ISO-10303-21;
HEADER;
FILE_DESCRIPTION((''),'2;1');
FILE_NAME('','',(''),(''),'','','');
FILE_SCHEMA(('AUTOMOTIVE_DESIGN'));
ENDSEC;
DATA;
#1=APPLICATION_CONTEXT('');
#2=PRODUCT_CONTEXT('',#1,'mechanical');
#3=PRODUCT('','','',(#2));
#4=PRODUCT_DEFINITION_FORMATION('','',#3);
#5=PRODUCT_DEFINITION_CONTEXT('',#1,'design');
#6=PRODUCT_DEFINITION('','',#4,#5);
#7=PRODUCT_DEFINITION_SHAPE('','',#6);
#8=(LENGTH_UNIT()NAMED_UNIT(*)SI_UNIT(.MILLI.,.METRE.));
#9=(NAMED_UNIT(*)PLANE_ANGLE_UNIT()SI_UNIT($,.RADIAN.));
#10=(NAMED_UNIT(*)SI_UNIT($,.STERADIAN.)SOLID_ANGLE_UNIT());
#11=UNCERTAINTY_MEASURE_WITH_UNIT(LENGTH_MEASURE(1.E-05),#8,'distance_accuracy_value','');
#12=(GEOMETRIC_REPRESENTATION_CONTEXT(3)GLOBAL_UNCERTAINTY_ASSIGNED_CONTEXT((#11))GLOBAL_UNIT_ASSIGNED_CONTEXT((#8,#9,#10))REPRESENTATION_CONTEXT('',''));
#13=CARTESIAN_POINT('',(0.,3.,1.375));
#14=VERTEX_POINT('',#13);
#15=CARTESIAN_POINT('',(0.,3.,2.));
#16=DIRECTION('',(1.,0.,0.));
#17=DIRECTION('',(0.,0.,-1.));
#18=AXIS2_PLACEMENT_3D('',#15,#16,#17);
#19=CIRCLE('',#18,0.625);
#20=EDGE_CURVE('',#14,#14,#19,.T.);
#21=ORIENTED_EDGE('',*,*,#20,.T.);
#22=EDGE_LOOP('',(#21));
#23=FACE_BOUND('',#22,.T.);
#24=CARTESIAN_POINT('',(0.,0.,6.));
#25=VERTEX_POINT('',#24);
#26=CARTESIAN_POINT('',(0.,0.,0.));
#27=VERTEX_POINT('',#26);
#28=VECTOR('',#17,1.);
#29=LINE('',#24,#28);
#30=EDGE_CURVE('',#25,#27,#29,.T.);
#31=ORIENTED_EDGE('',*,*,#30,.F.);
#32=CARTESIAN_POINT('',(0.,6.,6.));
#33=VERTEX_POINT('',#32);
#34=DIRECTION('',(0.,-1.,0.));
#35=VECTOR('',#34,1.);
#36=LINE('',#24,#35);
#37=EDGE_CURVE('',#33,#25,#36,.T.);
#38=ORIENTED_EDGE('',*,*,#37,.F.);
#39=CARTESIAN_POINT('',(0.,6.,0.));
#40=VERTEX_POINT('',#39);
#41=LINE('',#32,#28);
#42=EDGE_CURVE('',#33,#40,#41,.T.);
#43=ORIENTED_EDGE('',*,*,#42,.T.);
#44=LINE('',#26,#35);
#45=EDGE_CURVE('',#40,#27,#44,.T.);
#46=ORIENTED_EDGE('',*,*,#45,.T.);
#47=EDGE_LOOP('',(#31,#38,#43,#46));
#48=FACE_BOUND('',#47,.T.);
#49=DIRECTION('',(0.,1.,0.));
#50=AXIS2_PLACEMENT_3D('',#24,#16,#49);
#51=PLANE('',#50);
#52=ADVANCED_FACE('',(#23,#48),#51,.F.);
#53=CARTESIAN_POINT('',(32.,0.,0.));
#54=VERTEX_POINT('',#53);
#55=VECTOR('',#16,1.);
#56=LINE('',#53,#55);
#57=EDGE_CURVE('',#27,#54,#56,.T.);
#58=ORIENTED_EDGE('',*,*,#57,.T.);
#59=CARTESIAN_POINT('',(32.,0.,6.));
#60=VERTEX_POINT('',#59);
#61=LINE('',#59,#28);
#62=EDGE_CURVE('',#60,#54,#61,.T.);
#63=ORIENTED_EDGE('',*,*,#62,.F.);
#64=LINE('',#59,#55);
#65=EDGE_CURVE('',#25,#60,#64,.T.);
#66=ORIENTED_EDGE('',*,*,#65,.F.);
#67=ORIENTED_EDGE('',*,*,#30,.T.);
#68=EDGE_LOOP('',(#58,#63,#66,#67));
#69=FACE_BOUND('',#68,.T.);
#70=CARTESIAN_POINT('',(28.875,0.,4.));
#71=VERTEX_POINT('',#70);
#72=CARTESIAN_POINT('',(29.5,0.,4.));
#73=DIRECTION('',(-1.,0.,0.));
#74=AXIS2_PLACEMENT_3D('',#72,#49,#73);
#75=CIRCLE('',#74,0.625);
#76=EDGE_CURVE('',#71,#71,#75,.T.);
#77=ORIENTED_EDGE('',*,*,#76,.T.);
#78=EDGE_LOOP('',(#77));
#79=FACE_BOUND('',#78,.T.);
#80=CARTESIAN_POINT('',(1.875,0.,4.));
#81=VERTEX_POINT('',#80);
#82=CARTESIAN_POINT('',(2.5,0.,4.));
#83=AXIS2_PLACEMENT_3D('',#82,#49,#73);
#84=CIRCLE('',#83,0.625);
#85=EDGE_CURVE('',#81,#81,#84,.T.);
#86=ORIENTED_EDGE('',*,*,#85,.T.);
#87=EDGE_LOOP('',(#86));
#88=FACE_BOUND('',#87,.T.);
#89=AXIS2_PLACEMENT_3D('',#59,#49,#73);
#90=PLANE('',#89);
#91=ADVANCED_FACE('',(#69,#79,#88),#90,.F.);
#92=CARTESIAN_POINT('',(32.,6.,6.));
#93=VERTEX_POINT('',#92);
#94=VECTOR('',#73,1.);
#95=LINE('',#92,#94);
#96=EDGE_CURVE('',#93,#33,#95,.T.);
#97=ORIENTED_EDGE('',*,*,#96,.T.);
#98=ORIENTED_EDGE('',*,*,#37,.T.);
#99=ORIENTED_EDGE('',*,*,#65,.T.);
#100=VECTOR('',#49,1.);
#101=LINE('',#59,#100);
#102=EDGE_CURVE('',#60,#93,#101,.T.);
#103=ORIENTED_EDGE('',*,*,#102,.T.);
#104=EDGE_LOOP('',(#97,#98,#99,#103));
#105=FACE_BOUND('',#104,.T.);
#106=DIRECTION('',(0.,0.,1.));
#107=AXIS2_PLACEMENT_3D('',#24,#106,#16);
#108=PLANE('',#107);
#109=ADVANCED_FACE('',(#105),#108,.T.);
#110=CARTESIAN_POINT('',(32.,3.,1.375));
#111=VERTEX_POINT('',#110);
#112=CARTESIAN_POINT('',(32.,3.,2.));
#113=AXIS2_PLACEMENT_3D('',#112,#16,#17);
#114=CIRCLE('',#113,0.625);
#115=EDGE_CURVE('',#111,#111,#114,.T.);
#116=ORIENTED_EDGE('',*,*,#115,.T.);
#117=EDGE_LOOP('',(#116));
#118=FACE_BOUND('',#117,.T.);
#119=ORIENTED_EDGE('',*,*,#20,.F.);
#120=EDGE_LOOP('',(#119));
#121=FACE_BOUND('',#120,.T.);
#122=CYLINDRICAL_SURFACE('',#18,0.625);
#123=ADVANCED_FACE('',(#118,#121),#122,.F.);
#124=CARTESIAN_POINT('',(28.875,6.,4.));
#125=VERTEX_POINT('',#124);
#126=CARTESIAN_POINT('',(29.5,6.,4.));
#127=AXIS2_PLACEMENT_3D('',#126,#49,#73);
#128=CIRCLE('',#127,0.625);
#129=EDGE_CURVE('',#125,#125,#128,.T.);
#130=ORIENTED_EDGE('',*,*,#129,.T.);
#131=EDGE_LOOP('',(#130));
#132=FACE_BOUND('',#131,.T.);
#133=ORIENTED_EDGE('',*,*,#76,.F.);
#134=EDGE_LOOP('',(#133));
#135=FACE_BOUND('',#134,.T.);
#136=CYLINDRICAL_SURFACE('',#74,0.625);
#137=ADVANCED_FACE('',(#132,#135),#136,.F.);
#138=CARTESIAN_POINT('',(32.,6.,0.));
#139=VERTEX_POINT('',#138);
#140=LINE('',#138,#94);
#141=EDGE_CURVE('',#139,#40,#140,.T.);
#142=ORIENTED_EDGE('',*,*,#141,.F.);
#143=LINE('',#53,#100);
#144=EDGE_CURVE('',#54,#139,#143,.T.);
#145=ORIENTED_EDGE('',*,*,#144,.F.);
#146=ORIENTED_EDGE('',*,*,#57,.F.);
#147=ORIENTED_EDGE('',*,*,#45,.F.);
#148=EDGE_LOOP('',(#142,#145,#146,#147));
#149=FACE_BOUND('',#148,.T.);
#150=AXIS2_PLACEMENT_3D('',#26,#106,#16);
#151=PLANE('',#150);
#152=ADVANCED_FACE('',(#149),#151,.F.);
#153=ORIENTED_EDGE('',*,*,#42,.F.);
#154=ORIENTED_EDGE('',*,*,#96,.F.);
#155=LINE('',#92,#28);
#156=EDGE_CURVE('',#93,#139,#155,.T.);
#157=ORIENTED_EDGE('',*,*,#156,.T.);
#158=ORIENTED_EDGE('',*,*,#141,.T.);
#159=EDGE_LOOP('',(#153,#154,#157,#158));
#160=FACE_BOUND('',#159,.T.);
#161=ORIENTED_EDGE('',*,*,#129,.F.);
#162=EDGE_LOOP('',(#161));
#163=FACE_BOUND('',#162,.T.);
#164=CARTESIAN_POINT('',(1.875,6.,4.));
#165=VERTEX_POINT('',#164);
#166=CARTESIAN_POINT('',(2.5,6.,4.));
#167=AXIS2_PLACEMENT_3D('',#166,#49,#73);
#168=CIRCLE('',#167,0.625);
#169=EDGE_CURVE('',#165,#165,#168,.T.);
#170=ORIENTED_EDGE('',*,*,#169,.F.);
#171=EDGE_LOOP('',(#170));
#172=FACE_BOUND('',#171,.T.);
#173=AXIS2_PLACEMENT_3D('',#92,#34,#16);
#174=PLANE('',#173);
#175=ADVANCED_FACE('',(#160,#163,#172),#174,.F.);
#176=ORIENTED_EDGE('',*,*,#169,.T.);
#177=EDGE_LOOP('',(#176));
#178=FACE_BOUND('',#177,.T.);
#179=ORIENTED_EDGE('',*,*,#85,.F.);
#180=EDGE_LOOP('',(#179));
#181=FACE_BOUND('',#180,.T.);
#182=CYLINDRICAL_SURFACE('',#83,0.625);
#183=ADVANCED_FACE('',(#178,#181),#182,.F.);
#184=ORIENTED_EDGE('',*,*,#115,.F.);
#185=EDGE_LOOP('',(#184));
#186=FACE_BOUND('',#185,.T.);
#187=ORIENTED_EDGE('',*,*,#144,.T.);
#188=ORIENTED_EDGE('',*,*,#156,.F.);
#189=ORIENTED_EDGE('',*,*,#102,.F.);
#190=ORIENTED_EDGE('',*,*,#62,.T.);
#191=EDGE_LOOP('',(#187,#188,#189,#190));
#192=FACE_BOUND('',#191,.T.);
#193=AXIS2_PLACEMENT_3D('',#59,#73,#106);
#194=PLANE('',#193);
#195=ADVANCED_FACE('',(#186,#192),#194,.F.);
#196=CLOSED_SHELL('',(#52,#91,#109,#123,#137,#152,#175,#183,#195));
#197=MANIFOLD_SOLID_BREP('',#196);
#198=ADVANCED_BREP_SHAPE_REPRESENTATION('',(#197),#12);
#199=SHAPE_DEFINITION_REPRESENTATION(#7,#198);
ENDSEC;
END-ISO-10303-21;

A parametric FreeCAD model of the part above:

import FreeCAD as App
import Part
import Sketcher
Q = App.Units.Quantity

doc = App.newDocument("Part")
body = doc.addObject("PartDesign::Body", "Body")

sketch1 = body.newObject("Sketcher::SketchObject", "Sketch")
sketch1.AttachmentSupport = (doc.getObject("XY_Plane"), [""])
sketch1.MapMode = "FlatFace"
sketch1.addGeometry(Part.LineSegment(App.Vector(0, 6, 0), App.Vector(0, 0, 0)), False)
sketch1.addGeometry(Part.LineSegment(App.Vector(0, 0, 0), App.Vector(32, 0, 0)), False)
sketch1.addGeometry(Part.LineSegment(App.Vector(32, 0, 0), App.Vector(32, 6, 0)), False)
sketch1.addGeometry(Part.LineSegment(App.Vector(32, 6, 0), App.Vector(0, 6, 0)), False)
sketch1.addConstraint(Sketcher.Constraint("Coincident", 0, 2, 1, 1))
sketch1.addConstraint(Sketcher.Constraint("Coincident", 1, 2, 2, 1))
sketch1.addConstraint(Sketcher.Constraint("Coincident", 2, 2, 3, 1))
sketch1.addConstraint(Sketcher.Constraint("Coincident", 3, 2, 0, 1))
sketch1.addConstraint(Sketcher.Constraint("Vertical", 0))
sketch1.addConstraint(Sketcher.Constraint("Horizontal", 1))
sketch1.addConstraint(Sketcher.Constraint("Vertical", 2))
sketch1.addConstraint(Sketcher.Constraint("Horizontal", 3))
sketch1.addConstraint(Sketcher.Constraint("Coincident", 0, 2, -1, 1))
sketch1.addConstraint(Sketcher.Constraint("DistanceX", 1, 1, 1, 2, Q("32 mm")))
sketch1.addConstraint(Sketcher.Constraint("DistanceY", 0, 2, 0, 1, Q("6 mm")))
pad1 = body.newObject("PartDesign::Pad", "Pad")
pad1.Profile = sketch1
pad1.Length = 6

sketch2 = body.newObject("Sketcher::SketchObject", "Sketch001")
sketch2.AttachmentSupport = (doc.getObject("YZ_Plane"), [""])
sketch2.MapMode = "FlatFace"
sketch2.AttachmentOffset = App.Placement(App.Vector(0, 0, 32), App.Rotation())
sketch2.addGeometry(Part.Circle(App.Vector(3, 2, 0), App.Vector(0, 0, 1), 0.625), False)
sketch2.addConstraint(Sketcher.Constraint("Diameter", 0, Q("1.25 mm")))
sketch2.addConstraint(Sketcher.Constraint("DistanceX", -1, 1, 0, 3, Q("3 mm")))
sketch2.addConstraint(Sketcher.Constraint("DistanceY", -1, 1, 0, 3, Q("2 mm")))
pocket1 = body.newObject("PartDesign::Pocket", "Pocket")
pocket1.Profile = sketch2
pocket1.Type = "ThroughAll"

sketch3 = body.newObject("Sketcher::SketchObject", "Sketch002")
sketch3.AttachmentSupport = (doc.getObject("XZ_Plane"), [""])
sketch3.MapMode = "FlatFace"
sketch3.AttachmentOffset = App.Placement(App.Vector(0, 0, -6), App.Rotation())
sketch3.addGeometry(Part.Circle(App.Vector(29.5, 4, 0), App.Vector(0, 0, 1), 0.625), False)
sketch3.addGeometry(Part.Circle(App.Vector(2.5, 4, 0), App.Vector(0, 0, 1), 0.625), False)
sketch3.addConstraint(Sketcher.Constraint("Equal", 0, 1))
sketch3.addConstraint(Sketcher.Constraint("Horizontal", 0, 3, 1, 3))
sketch3.addConstraint(Sketcher.Constraint("Diameter", 0, Q("1.25 mm")))
sketch3.addConstraint(Sketcher.Constraint("DistanceY", -1, 1, 0, 3, Q("4 mm")))
sketch3.addConstraint(Sketcher.Constraint("DistanceX", 1, 3, 0, 3, Q("27 mm")))
sketch3.addConstraint(Sketcher.Constraint("DistanceX", -1, 1, 0, 3, Q("29.5 mm")))
pocket2 = body.newObject("PartDesign::Pocket", "Pocket001")
pocket2.Profile = sketch3
pocket2.Type = "ThroughAll"
pocket2.Reversed = True

doc.recompute()
